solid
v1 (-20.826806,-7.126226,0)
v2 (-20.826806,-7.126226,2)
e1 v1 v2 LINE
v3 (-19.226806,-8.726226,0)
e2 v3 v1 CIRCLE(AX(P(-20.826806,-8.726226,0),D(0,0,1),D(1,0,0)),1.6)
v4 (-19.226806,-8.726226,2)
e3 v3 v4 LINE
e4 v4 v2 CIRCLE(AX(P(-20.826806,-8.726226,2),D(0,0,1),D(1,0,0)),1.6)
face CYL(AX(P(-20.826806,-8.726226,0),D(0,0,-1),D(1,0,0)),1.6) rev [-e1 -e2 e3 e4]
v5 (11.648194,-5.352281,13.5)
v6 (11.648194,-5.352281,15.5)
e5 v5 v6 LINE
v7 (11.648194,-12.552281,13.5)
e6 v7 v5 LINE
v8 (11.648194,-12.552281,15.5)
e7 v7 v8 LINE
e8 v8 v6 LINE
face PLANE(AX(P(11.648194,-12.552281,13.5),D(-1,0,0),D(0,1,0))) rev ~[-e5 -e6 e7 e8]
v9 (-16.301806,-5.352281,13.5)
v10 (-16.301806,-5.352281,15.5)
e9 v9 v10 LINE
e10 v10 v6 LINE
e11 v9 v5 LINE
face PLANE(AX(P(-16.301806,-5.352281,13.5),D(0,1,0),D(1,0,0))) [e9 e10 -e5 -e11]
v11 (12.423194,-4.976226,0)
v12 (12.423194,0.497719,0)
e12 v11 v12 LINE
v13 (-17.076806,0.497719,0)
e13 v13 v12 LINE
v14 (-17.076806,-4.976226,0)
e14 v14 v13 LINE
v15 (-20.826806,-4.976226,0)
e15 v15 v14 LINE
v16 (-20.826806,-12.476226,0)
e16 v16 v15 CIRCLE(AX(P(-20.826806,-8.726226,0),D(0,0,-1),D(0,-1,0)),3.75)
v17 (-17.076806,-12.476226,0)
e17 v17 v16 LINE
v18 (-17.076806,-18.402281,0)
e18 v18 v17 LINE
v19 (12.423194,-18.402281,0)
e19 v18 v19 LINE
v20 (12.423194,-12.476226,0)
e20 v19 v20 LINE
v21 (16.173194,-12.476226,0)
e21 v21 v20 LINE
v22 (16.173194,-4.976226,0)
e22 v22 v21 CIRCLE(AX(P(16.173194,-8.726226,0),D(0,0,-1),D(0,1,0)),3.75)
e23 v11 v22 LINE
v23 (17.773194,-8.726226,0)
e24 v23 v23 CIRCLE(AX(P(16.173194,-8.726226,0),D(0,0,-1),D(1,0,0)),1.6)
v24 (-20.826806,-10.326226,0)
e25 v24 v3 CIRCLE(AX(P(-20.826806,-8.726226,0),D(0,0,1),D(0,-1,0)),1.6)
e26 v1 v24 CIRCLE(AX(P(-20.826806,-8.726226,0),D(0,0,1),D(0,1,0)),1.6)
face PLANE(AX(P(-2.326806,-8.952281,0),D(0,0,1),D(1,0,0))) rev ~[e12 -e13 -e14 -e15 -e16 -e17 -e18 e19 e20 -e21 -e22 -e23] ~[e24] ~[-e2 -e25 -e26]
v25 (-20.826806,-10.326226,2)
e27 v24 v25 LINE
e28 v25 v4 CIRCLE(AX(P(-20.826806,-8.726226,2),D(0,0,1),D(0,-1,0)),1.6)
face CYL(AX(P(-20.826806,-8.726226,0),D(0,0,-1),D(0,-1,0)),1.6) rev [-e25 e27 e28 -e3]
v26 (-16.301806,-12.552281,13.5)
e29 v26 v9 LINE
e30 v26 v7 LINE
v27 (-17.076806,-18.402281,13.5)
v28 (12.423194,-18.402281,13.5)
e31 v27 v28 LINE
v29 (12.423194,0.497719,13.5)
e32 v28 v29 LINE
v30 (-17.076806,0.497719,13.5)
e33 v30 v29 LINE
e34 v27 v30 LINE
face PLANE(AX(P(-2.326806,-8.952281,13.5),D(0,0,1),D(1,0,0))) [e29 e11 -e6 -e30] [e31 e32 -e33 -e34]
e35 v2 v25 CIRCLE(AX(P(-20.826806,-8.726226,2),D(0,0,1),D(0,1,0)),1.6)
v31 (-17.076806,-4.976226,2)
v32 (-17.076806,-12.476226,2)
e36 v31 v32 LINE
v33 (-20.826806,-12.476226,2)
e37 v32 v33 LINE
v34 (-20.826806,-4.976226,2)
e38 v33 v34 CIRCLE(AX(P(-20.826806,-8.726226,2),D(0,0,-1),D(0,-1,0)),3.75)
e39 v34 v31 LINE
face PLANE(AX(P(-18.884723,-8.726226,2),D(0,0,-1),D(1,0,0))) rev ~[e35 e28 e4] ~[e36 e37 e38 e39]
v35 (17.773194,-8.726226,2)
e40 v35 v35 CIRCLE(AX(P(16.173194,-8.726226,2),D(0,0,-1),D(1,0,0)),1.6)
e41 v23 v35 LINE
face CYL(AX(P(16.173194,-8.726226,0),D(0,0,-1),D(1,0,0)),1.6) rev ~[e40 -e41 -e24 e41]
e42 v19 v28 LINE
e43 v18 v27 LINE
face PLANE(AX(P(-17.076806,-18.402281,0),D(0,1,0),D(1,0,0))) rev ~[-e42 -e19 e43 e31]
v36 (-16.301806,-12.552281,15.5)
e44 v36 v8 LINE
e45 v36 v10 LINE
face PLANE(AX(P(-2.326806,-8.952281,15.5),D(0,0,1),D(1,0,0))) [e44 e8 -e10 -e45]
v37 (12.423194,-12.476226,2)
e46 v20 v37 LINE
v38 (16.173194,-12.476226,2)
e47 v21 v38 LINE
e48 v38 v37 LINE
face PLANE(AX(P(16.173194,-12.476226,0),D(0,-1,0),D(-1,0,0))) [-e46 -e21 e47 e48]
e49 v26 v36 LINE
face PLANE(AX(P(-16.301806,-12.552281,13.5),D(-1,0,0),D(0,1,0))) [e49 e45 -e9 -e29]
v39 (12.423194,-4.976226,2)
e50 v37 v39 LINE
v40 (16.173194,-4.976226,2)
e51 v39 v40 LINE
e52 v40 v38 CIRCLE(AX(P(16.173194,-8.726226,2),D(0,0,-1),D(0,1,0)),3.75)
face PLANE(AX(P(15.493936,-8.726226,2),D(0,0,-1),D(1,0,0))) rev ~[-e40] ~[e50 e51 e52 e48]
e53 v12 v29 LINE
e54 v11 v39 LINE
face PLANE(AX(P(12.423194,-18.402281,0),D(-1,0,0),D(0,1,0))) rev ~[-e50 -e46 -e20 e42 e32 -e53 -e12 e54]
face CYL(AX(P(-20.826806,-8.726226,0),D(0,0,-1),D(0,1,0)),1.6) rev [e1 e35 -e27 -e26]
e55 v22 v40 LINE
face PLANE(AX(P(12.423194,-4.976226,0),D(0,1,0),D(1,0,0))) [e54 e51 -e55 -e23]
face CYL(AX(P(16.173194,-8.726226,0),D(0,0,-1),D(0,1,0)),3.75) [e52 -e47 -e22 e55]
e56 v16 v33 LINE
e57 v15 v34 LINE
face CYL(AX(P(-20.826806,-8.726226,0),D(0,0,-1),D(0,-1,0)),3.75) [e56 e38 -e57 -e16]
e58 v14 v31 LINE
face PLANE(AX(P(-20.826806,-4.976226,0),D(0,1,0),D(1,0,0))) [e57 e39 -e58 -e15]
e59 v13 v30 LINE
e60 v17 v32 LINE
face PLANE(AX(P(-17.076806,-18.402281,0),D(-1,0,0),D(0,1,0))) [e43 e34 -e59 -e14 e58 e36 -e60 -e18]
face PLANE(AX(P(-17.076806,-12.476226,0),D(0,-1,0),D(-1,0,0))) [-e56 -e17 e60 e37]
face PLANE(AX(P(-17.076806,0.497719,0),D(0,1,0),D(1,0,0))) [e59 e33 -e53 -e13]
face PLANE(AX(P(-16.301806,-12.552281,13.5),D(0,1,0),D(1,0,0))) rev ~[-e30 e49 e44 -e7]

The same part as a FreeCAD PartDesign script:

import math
import FreeCAD as App
import Part
import Sketcher
from FreeCAD import Vector

doc = App.newDocument("Part")
body = doc.addObject("PartDesign::Body", "Body")

# Sketch on XY plane
sketch1 = doc.addObject("Sketcher::SketchObject", "Sketch")
body.addObject(sketch1)
sketch1.AttachmentSupport = (doc.XY_Plane, [""])
sketch1.MapMode = "FlatFace"
sketch1.addGeometry(Part.LineSegment(Vector(-17, 0, 0), Vector(-17, -18, 0)), False)
sketch1.addGeometry(Part.LineSegment(Vector(-17, -18, 0), Vector(12, -18, 0)), False)
sketch1.addGeometry(Part.LineSegment(Vector(12, -18, 0), Vector(12, 0, 0)), False)
sketch1.addGeometry(Part.LineSegment(Vector(12, 0, 0), Vector(-17, 0, 0)), False)
sketch1.addConstraint(Sketcher.Constraint("Coincident", 0, 2, 1, 1))
sketch1.addConstraint(Sketcher.Constraint("Coincident", 1, 2, 2, 1))
sketch1.addConstraint(Sketcher.Constraint("Coincident", 2, 2, 3, 1))
sketch1.addConstraint(Sketcher.Constraint("Coincident", 3, 2, 0, 1))
sketch1.addConstraint(Sketcher.Constraint("Vertical", 0))
sketch1.addConstraint(Sketcher.Constraint("Horizontal", 1))
sketch1.addConstraint(Sketcher.Constraint("Vertical", 2))
sketch1.addConstraint(Sketcher.Constraint("Horizontal", 3))
sketch1.addConstraint(Sketcher.Constraint("DistanceX", 1, 1, 1, 2, 29.5))
sketch1.addConstraint(Sketcher.Constraint("DistanceY", 0, 2, 0, 1, 18.9))
sketch1.addConstraint(Sketcher.Constraint("DistanceY", 0, 2, -1, 1, 18.402281))
sketch1.addConstraint(Sketcher.Constraint("DistanceX", 0, 2, -1, 1, 17.076806))
pad1 = doc.addObject("PartDesign::Pad", "Pad")
body.addObject(pad1)
pad1.Profile = sketch1
pad1.Length = 13.5

# Sketch on XY plane
sketch2 = doc.addObject("Sketcher::SketchObject", "Sketch001")
body.addObject(sketch2)
sketch2.AttachmentSupport = (doc.XY_Plane, [""])
sketch2.MapMode = "FlatFace"
sketch2.addGeometry(Part.LineSegment(Vector(-20.8, -5, 0), Vector(-17.1, -5, 0)), False)
sketch2.addGeometry(Part.LineSegment(Vector(-17.1, -5, 0), Vector(-17.1, -12.5, 0)), False)
sketch2.addGeometry(Part.LineSegment(Vector(-17.1, -12.5, 0), Vector(-20.8, -12.5, 0)), False)
sketch2.addGeometry(Part.ArcOfCircle(Part.Circle(Vector(-20.8, -8.7, 0), Vector(0, 0, 1), 3.8), math.radians(90), math.radians(270)), False)
sketch2.addGeometry(Part.ArcOfCircle(Part.Circle(Vector(-20.8, -8.7, 0), Vector(0, 0, 1), 1.6), math.radians(-90), math.radians(0)), False)
sketch2.addGeometry(Part.ArcOfCircle(Part.Circle(Vector(-20.8, -8.7, 0), Vector(0, 0, 1), 1.6), math.radians(0), math.radians(90)), False)
sketch2.addGeometry(Part.ArcOfCircle(Part.Circle(Vector(-20.8, -8.7, 0), Vector(0, 0, 1), 1.6), math.radians(90), math.radians(270)), False)
sketch2.addGeometry(Part.LineSegment(Vector(12.4, -12.5, 0), Vector(12.4, -5, 0)), False)
sketch2.addGeometry(Part.LineSegment(Vector(12.4, -5, 0), Vector(16.2, -5, 0)), False)
sketch2.addGeometry(Part.ArcOfCircle(Part.Circle(Vector(16.2, -8.7, 0), Vector(0, 0, 1), 3.8), math.radians(-90), math.radians(90)), False)
sketch2.addGeometry(Part.LineSegment(Vector(16.2, -12.5, 0), Vector(12.4, -12.5, 0)), False)
sketch2.addGeometry(Part.Circle(Vector(16.2, -8.7, 0), Vector(0, 0, 1), 1.6), False)
sketch2.addConstraint(Sketcher.Constraint("Coincident", 0, 2, 1, 1))
sketch2.addConstraint(Sketcher.Constraint("Coincident", 1, 2, 2, 1))
sketch2.addConstraint(Sketcher.Constraint("Tangent", 2, 2, 3, 2))
sketch2.addConstraint(Sketcher.Constraint("Tangent", 3, 1, 0, 1))
sketch2.addConstraint(Sketcher.Constraint("Tangent", 4, 2, 5, 1))
sketch2.addConstraint(Sketcher.Constraint("Tangent", 5, 2, 6, 1))
sketch2.addConstraint(Sketcher.Constraint("Tangent", 6, 2, 4, 1))
sketch2.addConstraint(Sketcher.Constraint("Coincident", 7, 2, 8, 1))
sketch2.addConstraint(Sketcher.Constraint("Tangent", 8, 2, 9, 2))
sketch2.addConstraint(Sketcher.Constraint("Tangent", 9, 1, 10, 1))
sketch2.addConstraint(Sketcher.Constraint("Coincident", 10, 2, 7, 1))
sketch2.addConstraint(Sketcher.Constraint("Horizontal", 0))
sketch2.addConstraint(Sketcher.Constraint("Vertical", 1))
sketch2.addConstraint(Sketcher.Constraint("Horizontal", 2))
sketch2.addConstraint(Sketcher.Constraint("Vertical", 7))
sketch2.addConstraint(Sketcher.Constraint("Horizontal", 8))
sketch2.addConstraint(Sketcher.Constraint("Horizontal", 10))
sketch2.addConstraint(Sketcher.Constraint("Coincident", 4, 3, 3, 3))
sketch2.addConstraint(Sketcher.Constraint("Coincident", 11, 3, 9, 3))
sketch2.addConstraint(Sketcher.Constraint("Equal", 3, 9))
sketch2.addConstraint(Sketcher.Constraint("Equal", 6, 11))
sketch2.addConstraint(Sketcher.Constraint("Horizontal", 6, 3, 9, 3))
sketch2.addConstraint(Sketcher.Constraint("Horizontal", 11, 3, 4, 2))
sketch2.addConstraint(Sketcher.Constraint("Vertical", 3, 1, 5, 2))
sketch2.addConstraint(Sketcher.Constraint("Vertical", 5, 2, 6, 2))
sketch2.addConstraint(Sketcher.Constraint("Equal", 2, 8))
sketch2.addConstraint(Sketcher.Constraint("Diameter", 11, 3.2))
sketch2.addConstraint(Sketcher.Constraint("Radius", 3, 3.75))
sketch2.addConstraint(Sketcher.Constraint("DistanceX", 3, 3, 9, 3, 37.0))
sketch2.addConstraint(Sketcher.Constraint("DistanceX", 0, 1, 0, 2, 3.75))
sketch2.addConstraint(Sketcher.Constraint("DistanceX", 3, 3, -1, 1, 20.826806))
sketch2.addConstraint(Sketcher.Constraint("DistanceY", 3, 3, -1, 1, 8.726226))
pad2 = doc.addObject("PartDesign::Pad", "Pad001")
body.addObject(pad2)
pad2.Profile = sketch2
pad2.Length = 2

# Sketch on XY plane
sketch3 = doc.addObject("Sketcher::SketchObject", "Sketch002")
body.addObject(sketch3)
sketch3.AttachmentSupport = (doc.XY_Plane, [""])
sketch3.MapMode = "FlatFace"
sketch3.AttachmentOffset = App.Placement(Vector(0, 0, 13.5), App.Rotation())
sketch3.addGeometry(Part.LineSegment(Vector(-16, -5, 0), Vector(-16, -13, 0)), False)
sketch3.addGeometry(Part.LineSegment(Vector(-16, -13, 0), Vector(12, -13, 0)), False)
sketch3.addGeometry(Part.LineSegment(Vector(12, -13, 0), Vector(12, -5, 0)), False)
sketch3.addGeometry(Part.LineSegment(Vector(12, -5, 0), Vector(-16, -5, 0)), False)
sketch3.addConstraint(Sketcher.Constraint("Coincident", 0, 2, 1, 1))
sketch3.addConstraint(Sketcher.Constraint("Coincident", 1, 2, 2, 1))
sketch3.addConstraint(Sketcher.Constraint("Coincident", 2, 2, 3, 1))
sketch3.addConstraint(Sketcher.Constraint("Coincident", 3, 2, 0, 1))
sketch3.addConstraint(Sketcher.Constraint("Vertical", 0))
sketch3.addConstraint(Sketcher.Constraint("Horizontal", 1))
sketch3.addConstraint(Sketcher.Constraint("Vertical", 2))
sketch3.addConstraint(Sketcher.Constraint("Horizontal", 3))
sketch3.addConstraint(Sketcher.Constraint("DistanceY", 0, 2, 0, 1, 7.2))
sketch3.addConstraint(Sketcher.Constraint("DistanceX", 1, 1, 1, 2, 27.95))
sketch3.addConstraint(Sketcher.Constraint("DistanceY", 0, 2, -1, 1, 12.552281))
sketch3.addConstraint(Sketcher.Constraint("DistanceX", 0, 2, -1, 1, 16.301806))
pad3 = doc.addObject("PartDesign::Pad", "Pad002")
body.addObject(pad3)
pad3.Profile = sketch3
pad3.Length = 2

doc.recompute()
